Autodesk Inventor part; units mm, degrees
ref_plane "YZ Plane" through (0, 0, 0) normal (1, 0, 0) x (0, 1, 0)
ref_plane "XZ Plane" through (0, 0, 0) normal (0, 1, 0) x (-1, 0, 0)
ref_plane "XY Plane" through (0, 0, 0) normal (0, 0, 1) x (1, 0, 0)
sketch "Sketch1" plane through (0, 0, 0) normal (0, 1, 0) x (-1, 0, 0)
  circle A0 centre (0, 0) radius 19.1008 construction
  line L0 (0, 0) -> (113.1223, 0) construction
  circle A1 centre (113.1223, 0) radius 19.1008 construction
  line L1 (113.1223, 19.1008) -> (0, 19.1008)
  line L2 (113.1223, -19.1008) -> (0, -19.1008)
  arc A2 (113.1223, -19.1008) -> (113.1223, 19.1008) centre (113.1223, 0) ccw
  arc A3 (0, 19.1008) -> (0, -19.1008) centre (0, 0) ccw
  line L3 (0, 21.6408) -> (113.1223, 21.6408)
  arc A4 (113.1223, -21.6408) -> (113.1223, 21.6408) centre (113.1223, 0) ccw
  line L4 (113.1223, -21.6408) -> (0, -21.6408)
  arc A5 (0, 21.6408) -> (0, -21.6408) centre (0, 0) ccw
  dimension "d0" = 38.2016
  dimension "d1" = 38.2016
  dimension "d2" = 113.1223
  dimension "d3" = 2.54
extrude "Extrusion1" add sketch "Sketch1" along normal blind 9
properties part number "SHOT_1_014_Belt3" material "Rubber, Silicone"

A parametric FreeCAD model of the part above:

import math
import FreeCAD as App
import Part
import Sketcher
from FreeCAD import Vector
Q = App.Units.Quantity

doc = App.newDocument("Part")
body = doc.addObject("PartDesign::Body", "Body")

sketch1 = doc.addObject("Sketcher::SketchObject", "Sketch")
body.addObject(sketch1)
sketch1.AttachmentSupport = (doc.XZ_Plane, [""])
sketch1.MapMode = "FlatFace"
sketch1.addGeometry([
    Part.LineSegment(Vector(-113.1223, 21.6408, 0), Vector(0, 21.6408, 0)),
    Part.ArcOfCircle(Part.Circle(Vector(0, 0, 0), Vector(0, 0, 1), 21.6408), math.radians(-90), math.radians(90)),
    Part.LineSegment(Vector(0, -21.6408, 0), Vector(-113.1223, -21.6408, 0)),
    Part.ArcOfCircle(Part.Circle(Vector(-113.1223, 0, 0), Vector(0, 0, 1), 21.6408), math.radians(90), math.radians(270)),
    Part.LineSegment(Vector(0, 19.1008, 0), Vector(-113.1223, 19.1008, 0)),
    Part.ArcOfCircle(Part.Circle(Vector(-113.1223, 0, 0), Vector(0, 0, 1), 19.1008), math.radians(90), math.radians(270)),
    Part.LineSegment(Vector(-113.1223, -19.1008, 0), Vector(0, -19.1008, 0)),
    Part.ArcOfCircle(Part.Circle(Vector(0, 0, 0), Vector(0, 0, 1), 19.1008), math.radians(-90), math.radians(90)),
], False)
sketch1.addConstraint([
    Sketcher.Constraint("Tangent", 0, 2, 1, 2),
    Sketcher.Constraint("Tangent", 1, 1, 2, 1),
    Sketcher.Constraint("Tangent", 2, 2, 3, 2),
    Sketcher.Constraint("Tangent", 3, 1, 0, 1),
    Sketcher.Constraint("Tangent", 4, 2, 5, 1),
    Sketcher.Constraint("Tangent", 5, 2, 6, 1),
    Sketcher.Constraint("Tangent", 6, 2, 7, 1),
    Sketcher.Constraint("Tangent", 7, 2, 4, 1),
    Sketcher.Constraint("Horizontal", 0),
    Sketcher.Constraint("Horizontal", 2),
    Sketcher.Constraint("Horizontal", 4),
    Sketcher.Constraint("Horizontal", 6),
    Sketcher.Constraint("Coincident", 1, 3, -1, 1),
    Sketcher.Constraint("Coincident", 7, 3, -1, 1),
    Sketcher.Constraint("Vertical", 5, 3, 2, 2),
    Sketcher.Constraint("Radius", 5, Q("0.752 in")),
    Sketcher.Constraint("DistanceY", 4, 2, 3, 1, Q("0.1 in")),
    Sketcher.Constraint("DistanceX", 0, 1, 0, 2, 113.1223),
])
pad1 = doc.addObject("PartDesign::Pad", "Pad")
body.addObject(pad1)
pad1.Profile = sketch1
pad1.Length = 9
pad1.Reversed = True

doc.recompute()
